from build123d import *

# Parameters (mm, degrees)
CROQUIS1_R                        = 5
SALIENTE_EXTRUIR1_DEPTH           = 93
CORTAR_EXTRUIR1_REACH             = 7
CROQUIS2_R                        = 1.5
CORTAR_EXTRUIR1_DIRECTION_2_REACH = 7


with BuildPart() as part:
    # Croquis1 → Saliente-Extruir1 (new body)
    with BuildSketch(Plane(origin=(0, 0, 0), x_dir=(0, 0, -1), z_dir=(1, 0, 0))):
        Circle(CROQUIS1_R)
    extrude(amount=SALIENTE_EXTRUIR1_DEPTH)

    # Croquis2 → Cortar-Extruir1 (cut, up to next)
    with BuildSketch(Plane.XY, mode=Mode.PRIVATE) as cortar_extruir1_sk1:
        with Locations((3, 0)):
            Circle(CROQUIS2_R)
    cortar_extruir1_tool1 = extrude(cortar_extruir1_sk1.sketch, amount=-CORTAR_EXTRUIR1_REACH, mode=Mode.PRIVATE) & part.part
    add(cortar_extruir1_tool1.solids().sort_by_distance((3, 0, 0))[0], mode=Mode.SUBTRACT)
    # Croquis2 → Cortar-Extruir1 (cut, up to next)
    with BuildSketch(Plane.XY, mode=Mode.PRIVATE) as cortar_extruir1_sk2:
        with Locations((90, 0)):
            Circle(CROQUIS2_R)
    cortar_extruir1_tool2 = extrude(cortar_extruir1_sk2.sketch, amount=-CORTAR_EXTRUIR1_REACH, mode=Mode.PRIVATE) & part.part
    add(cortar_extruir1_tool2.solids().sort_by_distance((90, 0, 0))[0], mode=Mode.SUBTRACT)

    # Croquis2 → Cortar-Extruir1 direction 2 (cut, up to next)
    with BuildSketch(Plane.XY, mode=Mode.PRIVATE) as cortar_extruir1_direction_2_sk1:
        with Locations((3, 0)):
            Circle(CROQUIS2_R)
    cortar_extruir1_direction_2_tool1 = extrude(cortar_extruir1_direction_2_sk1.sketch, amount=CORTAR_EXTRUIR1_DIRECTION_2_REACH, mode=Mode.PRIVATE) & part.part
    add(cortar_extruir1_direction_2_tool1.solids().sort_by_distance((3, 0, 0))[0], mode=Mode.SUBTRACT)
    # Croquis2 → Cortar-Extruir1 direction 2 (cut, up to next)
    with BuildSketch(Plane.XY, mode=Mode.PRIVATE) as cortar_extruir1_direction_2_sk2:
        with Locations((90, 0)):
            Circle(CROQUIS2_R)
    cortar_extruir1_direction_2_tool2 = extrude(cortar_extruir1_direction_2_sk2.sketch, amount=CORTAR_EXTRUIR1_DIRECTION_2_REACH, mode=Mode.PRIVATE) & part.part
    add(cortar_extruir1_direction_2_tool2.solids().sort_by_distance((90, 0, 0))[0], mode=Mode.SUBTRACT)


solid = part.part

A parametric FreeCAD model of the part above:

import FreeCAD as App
import Part
import Sketcher

doc = App.newDocument("Part")
body = doc.addObject("PartDesign::Body", "Body")

# Sketch on YZ plane
sketch1 = body.newObject("Sketcher::SketchObject", "Sketch")
sketch1.AttachmentSupport = (doc.getObject("YZ_Plane"), [""])
sketch1.MapMode = "FlatFace"
sketch1.addGeometry(Part.Circle(App.Vector(0, 0, 0), App.Vector(0, 0, 1), 5), False)
sketch1.addConstraint(Sketcher.Constraint("Coincident", 0, 3, -1, 1))
sketch1.addConstraint(Sketcher.Constraint("Diameter", 0, 10.0))
pad1 = body.newObject("PartDesign::Pad", "Pad")
pad1.Profile = sketch1
pad1.Length = 93

# Sketch on XY plane
sketch2 = body.newObject("Sketcher::SketchObject", "Sketch001")
sketch2.AttachmentSupport = (doc.getObject("XY_Plane"), [""])
sketch2.MapMode = "FlatFace"
sketch2.addGeometry(Part.Circle(App.Vector(3, 0, 0), App.Vector(0, 0, 1), 1.5), False)
sketch2.addConstraint(Sketcher.Constraint("PointOnObject", 0, 3, -1))
sketch2.addConstraint(Sketcher.Constraint("Diameter", 0, 3.0))
sketch2.addConstraint(Sketcher.Constraint("DistanceX", -1, 1, 0, 3, 3.0))
pocket1 = body.newObject("PartDesign::Pocket", "Pocket")
pocket1.Profile = sketch2
pocket1.Length = 5

# Sketch on XY plane
sketch3 = body.newObject("Sketcher::SketchObject", "Sketch002")
sketch3.AttachmentSupport = (doc.getObject("XY_Plane"), [""])
sketch3.MapMode = "FlatFace"
sketch3.addGeometry(Part.Circle(App.Vector(90, 0, 0), App.Vector(0, 0, 1), 1.5), False)
sketch3.addConstraint(Sketcher.Constraint("PointOnObject", 0, 3, -1))
sketch3.addConstraint(Sketcher.Constraint("Diameter", 0, 3.0))
sketch3.addConstraint(Sketcher.Constraint("DistanceX", -1, 1, 0, 3, 90.0))
pocket2 = body.newObject("PartDesign::Pocket", "Pocket001")
pocket2.Profile = sketch3
pocket2.Length = 5

# Sketch on XY plane
sketch4 = body.newObject("Sketcher::SketchObject", "Sketch003")
sketch4.AttachmentSupport = (doc.getObject("XY_Plane"), [""])
sketch4.MapMode = "FlatFace"
sketch4.addGeometry(Part.Circle(App.Vector(3, 0, 0), App.Vector(0, 0, 1), 1.5), False)
sketch4.addConstraint(Sketcher.Constraint("PointOnObject", 0, 3, -1))
sketch4.addConstraint(Sketcher.Constraint("Diameter", 0, 3.0))
sketch4.addConstraint(Sketcher.Constraint("DistanceX", -1, 1, 0, 3, 3.0))
pocket3 = body.newObject("PartDesign::Pocket", "Pocket002")
pocket3.Profile = sketch4
pocket3.Type = "UpToFirst"
pocket3.Reversed = True

# Sketch on XY plane
sketch5 = body.newObject("Sketcher::SketchObject", "Sketch004")
sketch5.AttachmentSupport = (doc.getObject("XY_Plane"), [""])
sketch5.MapMode = "FlatFace"
sketch5.addGeometry(Part.Circle(App.Vector(90, 0, 0), App.Vector(0, 0, 1), 1.5), False)
sketch5.addConstraint(Sketcher.Constraint("PointOnObject", 0, 3, -1))
sketch5.addConstraint(Sketcher.Constraint("Diameter", 0, 3.0))
sketch5.addConstraint(Sketcher.Constraint("DistanceX", -1, 1, 0, 3, 90.0))
pocket4 = body.newObject("PartDesign::Pocket", "Pocket003")
pocket4.Profile = sketch5
pocket4.Type = "UpToFirst"
pocket4.Reversed = True

doc.recompute()
